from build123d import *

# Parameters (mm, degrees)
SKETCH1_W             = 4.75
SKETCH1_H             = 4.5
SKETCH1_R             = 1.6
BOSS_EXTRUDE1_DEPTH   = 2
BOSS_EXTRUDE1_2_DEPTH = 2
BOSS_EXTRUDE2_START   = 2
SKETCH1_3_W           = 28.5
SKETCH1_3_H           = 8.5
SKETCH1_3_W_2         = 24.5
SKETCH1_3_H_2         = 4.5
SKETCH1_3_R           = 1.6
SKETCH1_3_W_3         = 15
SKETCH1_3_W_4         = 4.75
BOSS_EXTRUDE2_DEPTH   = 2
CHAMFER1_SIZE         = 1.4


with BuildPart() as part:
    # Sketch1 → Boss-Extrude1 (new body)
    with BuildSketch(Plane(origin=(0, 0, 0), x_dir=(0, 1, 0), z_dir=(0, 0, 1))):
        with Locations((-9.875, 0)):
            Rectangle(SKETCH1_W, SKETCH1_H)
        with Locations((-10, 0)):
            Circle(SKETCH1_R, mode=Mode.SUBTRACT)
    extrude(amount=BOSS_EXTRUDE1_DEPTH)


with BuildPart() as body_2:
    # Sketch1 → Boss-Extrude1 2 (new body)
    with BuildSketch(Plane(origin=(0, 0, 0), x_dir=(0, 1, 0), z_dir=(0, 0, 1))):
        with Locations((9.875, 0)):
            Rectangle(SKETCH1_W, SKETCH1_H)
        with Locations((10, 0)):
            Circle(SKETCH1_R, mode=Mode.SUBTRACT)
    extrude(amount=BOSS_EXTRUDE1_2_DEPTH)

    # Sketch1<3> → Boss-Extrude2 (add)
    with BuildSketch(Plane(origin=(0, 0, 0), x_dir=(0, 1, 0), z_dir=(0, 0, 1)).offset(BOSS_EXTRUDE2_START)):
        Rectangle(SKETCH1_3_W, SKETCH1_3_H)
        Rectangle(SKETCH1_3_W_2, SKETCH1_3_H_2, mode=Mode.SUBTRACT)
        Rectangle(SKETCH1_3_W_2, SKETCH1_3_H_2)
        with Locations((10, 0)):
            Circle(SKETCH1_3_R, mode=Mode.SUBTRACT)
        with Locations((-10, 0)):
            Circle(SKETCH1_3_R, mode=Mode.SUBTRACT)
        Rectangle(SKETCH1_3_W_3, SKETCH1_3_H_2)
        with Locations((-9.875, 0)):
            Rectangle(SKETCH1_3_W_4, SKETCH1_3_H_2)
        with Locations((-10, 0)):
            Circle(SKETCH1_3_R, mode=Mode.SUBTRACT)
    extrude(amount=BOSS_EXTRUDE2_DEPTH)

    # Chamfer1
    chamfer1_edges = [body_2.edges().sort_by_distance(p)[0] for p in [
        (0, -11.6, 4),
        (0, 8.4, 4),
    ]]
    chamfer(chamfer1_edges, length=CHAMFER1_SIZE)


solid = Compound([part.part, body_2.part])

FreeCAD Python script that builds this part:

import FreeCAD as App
import Part
import Sketcher

V = App.Vector


def edges_at(feature, points):
    """Names of the edges that pass closest to the given points."""
    edges = feature.Shape.Edges
    near = lambda p: min(range(len(edges)), key=lambda i: edges[i].distToShape(Part.Vertex(*p))[0])
    return sorted({f"Edge{near(p) + 1}" for p in points})


def add_polygon(sketch, points):
    """Adds a closed chain of lines whose ends are joined by coincident constraints."""
    first, n = sketch.GeometryCount, len(points)
    for a, b in zip(points, points[1:] + points[:1]):
        sketch.addGeometry(Part.LineSegment(App.Vector(*a, 0), App.Vector(*b, 0)), False)
    for i in range(n):
        sketch.addConstraint(Sketcher.Constraint("Coincident", first + i, 2, first + (i + 1) % n, 1))

doc = App.newDocument("Part")
params = doc.addObject("Spreadsheet::Sheet", "Params")
for row, (alias, value) in enumerate([
    ("sketch1_diameter", "3.2 mm"),
    ("sketch1_width", "4.5 mm"),
    ("sketch1_height", "4.75 mm"),
    ("pad1_length", "2 mm"),
    ("sketch2_diameter", "3.2 mm"),
    ("sketch2_width", "4.5 mm"),
    ("sketch2_height", "4.75 mm"),
    ("pad2_length", "2 mm"),
    ("sketch3_diameter", "3.2 mm"),
    ("sketch3_width", "8.5 mm"),
    ("sketch3_height", "28.5 mm"),
    ("pad3_length", "2 mm"),
    ("chamfer_size", "1.4 mm"),
], start=1):
    params.set(f"A{row}", alias)
    params.set(f"B{row}", "=" + value)
    params.setAlias(f"B{row}", alias)

body = doc.addObject("PartDesign::Body", "Body")

# Sketch on XY plane
sketch1 = body.newObject("Sketcher::SketchObject", "Sketch")
sketch1.AttachmentSupport = (doc.getObject("XY_Plane"), [""])
sketch1.MapMode = "FlatFace"
add_polygon(sketch1, [(-2.2, -12.2), (2.2, -12.2), (2.2, -7.5), (-2.2, -7.5)])  # lines 0-3
sketch1.addGeometry(Part.Circle(V(0, -10, 0), V(0, 0, 1), 1.6), False)  # 4
sketch1.addConstraint([
    Sketcher.Constraint("Horizontal", 0),
    Sketcher.Constraint("Vertical", 1),
    Sketcher.Constraint("Horizontal", 2),
    Sketcher.Constraint("Vertical", 3),
    Sketcher.Constraint("PointOnObject", 4, 3, -2),
    Sketcher.Constraint("Diameter", 4, 3.2),
    Sketcher.Constraint("DistanceX", 0, 1, 0, 2, 4.5),
    Sketcher.Constraint("DistanceY", 4, 3, -1, 1, 10.0),
    Sketcher.Constraint("DistanceY", 1, 1, 1, 2, 4.75),
    Sketcher.Constraint("DistanceY", 1, 2, -1, 1, 7.5),
    Sketcher.Constraint("DistanceX", -1, 1, 0, 2, 2.25),
])
sketch1.setExpression("Constraints[9]", "Params.sketch1_diameter")
sketch1.setExpression("Constraints[10]", "Params.sketch1_width")
sketch1.setExpression("Constraints[12]", "Params.sketch1_height")
pad1 = body.newObject("PartDesign::Pad", "Pad")
pad1.Profile = sketch1
pad1.setExpression("Length", "Params.pad1_length")
body2 = doc.addObject("PartDesign::Body", "Body001")

# Sketch on XY plane
sketch2 = body2.newObject("Sketcher::SketchObject", "Sketch001")
sketch2.AttachmentSupport = (doc.getObject("XY_Plane001"), [""])
sketch2.MapMode = "FlatFace"
add_polygon(sketch2, [(-2.2, 7.5), (2.2, 7.5), (2.2, 12.2), (-2.2, 12.2)])  # lines 0-3
sketch2.addGeometry(Part.Circle(V(0, 10, 0), V(0, 0, 1), 1.6), False)  # 4
sketch2.addConstraint([
    Sketcher.Constraint("Horizontal", 0),
    Sketcher.Constraint("Vertical", 1),
    Sketcher.Constraint("Horizontal", 2),
    Sketcher.Constraint("Vertical", 3),
    Sketcher.Constraint("PointOnObject", 4, 3, -2),
    Sketcher.Constraint("Diameter", 4, 3.2),
    Sketcher.Constraint("DistanceX", 0, 1, 0, 2, 4.5),
    Sketcher.Constraint("DistanceY", -1, 1, 4, 3, 10.0),
    Sketcher.Constraint("DistanceY", 1, 1, 1, 2, 4.75),
    Sketcher.Constraint("DistanceY", -1, 1, 0, 2, 7.5),
    Sketcher.Constraint("DistanceX", -1, 1, 0, 2, 2.25),
])
sketch2.setExpression("Constraints[9]", "Params.sketch2_diameter")
sketch2.setExpression("Constraints[10]", "Params.sketch2_width")
sketch2.setExpression("Constraints[12]", "Params.sketch2_height")
pad2 = body2.newObject("PartDesign::Pad", "Pad001")
pad2.Profile = sketch2
pad2.setExpression("Length", "Params.pad2_length")

# Sketch on XY plane
sketch3 = body2.newObject("Sketcher::SketchObject", "Sketch002")
sketch3.AttachmentSupport = (doc.getObject("XY_Plane001"), [""])
sketch3.MapMode = "FlatFace"
sketch3.AttachmentOffset = App.Placement(V(0, 0, 2), App.Rotation())
add_polygon(sketch3, [(-4.2, -14.2), (4.2, -14.2), (4.2, 14.2), (-4.2, 14.2)])  # lines 0-3
sketch3.addGeometry(Part.Circle(V(0, -10, 0), V(0, 0, 1), 1.6), False)  # 4
sketch3.addGeometry(Part.Circle(V(0, 10, 0), V(0, 0, 1), 1.6), False)  # 5
sketch3.addConstraint([
    Sketcher.Constraint("Horizontal", 0),
    Sketcher.Constraint("Vertical", 1),
    Sketcher.Constraint("Horizontal", 2),
    Sketcher.Constraint("Vertical", 3),
    Sketcher.Constraint("Equal", 4, 5),
    Sketcher.Constraint("Symmetric", 4, 3, 5, 3, -1, 1),
    Sketcher.Constraint("Symmetric", 0, 2, 2, 2, -1, 1),
    Sketcher.Constraint("PointOnObject", 4, 3, -2),
    Sketcher.Constraint("Diameter", 4, 3.2),
    Sketcher.Constraint("DistanceX", 0, 1, 0, 2, 8.5),
    Sketcher.Constraint("DistanceY", 1, 1, 1, 2, 28.5),
    Sketcher.Constraint("DistanceY", 4, 3, -1, 1, 10.0),
])
sketch3.setExpression("Constraints[12]", "Params.sketch3_diameter")
sketch3.setExpression("Constraints[13]", "Params.sketch3_width")
sketch3.setExpression("Constraints[14]", "Params.sketch3_height")
pad3 = body2.newObject("PartDesign::Pad", "Pad002")
pad3.Profile = sketch3
pad3.setExpression("Length", "Params.pad3_length")
doc.recompute()

chamfer = body2.newObject("PartDesign::Chamfer", "Chamfer")
chamfer.Base = (pad3, edges_at(pad3, [(0, -11.6, 4), (0, 8.4, 4)]))
chamfer.setExpression("Size", "Params.chamfer_size")

doc.recompute()
